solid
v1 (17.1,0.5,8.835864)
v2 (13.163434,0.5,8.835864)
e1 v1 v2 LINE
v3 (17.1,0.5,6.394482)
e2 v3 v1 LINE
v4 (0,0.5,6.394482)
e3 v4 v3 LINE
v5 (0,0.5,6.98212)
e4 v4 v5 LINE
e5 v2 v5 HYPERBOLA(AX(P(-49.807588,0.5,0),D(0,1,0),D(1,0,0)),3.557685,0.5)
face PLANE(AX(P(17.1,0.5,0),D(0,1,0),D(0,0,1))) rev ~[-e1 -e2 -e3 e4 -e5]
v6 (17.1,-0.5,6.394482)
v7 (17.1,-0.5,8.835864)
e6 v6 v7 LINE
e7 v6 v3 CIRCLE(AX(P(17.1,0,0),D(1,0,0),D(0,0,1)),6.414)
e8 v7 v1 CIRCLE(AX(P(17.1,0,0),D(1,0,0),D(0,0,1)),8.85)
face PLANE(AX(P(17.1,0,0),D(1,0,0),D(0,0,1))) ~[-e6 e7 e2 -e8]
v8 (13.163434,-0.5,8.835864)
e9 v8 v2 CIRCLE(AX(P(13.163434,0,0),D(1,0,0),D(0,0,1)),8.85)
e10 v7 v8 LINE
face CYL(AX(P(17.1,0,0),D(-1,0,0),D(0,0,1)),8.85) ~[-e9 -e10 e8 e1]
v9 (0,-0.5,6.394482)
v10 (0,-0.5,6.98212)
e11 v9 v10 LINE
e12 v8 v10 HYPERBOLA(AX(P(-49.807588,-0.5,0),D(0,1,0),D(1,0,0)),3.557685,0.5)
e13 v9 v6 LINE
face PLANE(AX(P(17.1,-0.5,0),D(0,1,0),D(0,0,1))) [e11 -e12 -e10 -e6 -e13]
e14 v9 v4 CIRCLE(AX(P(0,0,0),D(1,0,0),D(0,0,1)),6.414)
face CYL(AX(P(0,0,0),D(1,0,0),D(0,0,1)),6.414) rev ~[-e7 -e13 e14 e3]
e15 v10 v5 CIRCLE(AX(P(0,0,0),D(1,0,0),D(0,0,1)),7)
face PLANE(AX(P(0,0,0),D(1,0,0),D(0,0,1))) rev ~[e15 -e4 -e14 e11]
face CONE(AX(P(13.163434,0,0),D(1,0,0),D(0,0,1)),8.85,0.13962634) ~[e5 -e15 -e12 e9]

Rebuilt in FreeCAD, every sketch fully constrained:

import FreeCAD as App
import Part
import Sketcher
Q = App.Units.Quantity

doc = App.newDocument("Part")
body = doc.addObject("PartDesign::Body", "Body")

# Sketch on XZ plane
sketch1 = body.newObject("Sketcher::SketchObject", "Sketch")
sketch1.AttachmentSupport = (doc.getObject("XZ_Plane"), [""])
sketch1.MapMode = "FlatFace"
sketch1.addGeometry([
    Part.LineSegment(App.Vector(0, 7, 0), App.Vector(0, 6.4, 0)),  # 0
    Part.LineSegment(App.Vector(0, 6.4, 0), App.Vector(17.1, 6.4, 0)),  # 1
    Part.LineSegment(App.Vector(17.1, 6.4, 0), App.Vector(17.1, 8.8, 0)),  # 2
    Part.LineSegment(App.Vector(17.1, 8.8, 0), App.Vector(13.2, 8.8, 0)),  # 3
    Part.LineSegment(App.Vector(13.2, 8.8, 0), App.Vector(0, 7, 0)),  # 4
], False)
sketch1.addConstraint([
    Sketcher.Constraint("Coincident", 0, 2, 1, 1),
    Sketcher.Constraint("Coincident", 1, 2, 2, 1),
    Sketcher.Constraint("Coincident", 2, 2, 3, 1),
    Sketcher.Constraint("Coincident", 3, 2, 4, 1),
    Sketcher.Constraint("Coincident", 4, 2, 0, 1),
    Sketcher.Constraint("Vertical", 0),
    Sketcher.Constraint("Horizontal", 1),
    Sketcher.Constraint("Vertical", 2),
    Sketcher.Constraint("Horizontal", 3),
    Sketcher.Constraint("PointOnObject", 0, 2, -2),
    Sketcher.Constraint("Angle", 4, Q("-172 deg")),
    Sketcher.Constraint("DistanceX", 1, 1, 1, 2, Q("17.1 mm")),
    Sketcher.Constraint("DistanceY", -1, 1, 4, 2, Q("7 mm")),
    Sketcher.Constraint("DistanceY", 0, 2, 0, 1, Q("0.586 mm")),
    Sketcher.Constraint("DistanceY", 2, 1, 2, 2, Q("2.436 mm")),
])
revolution = body.newObject("PartDesign::Revolution", "Revolution")
revolution.Profile = sketch1
revolution.ReferenceAxis = (sketch1, ["H_Axis"])
revolution.Angle = 360

# Sketch on YZ plane
sketch2 = body.newObject("Sketcher::SketchObject", "Sketch001")
sketch2.AttachmentSupport = (doc.getObject("YZ_Plane"), [""])
sketch2.MapMode = "FlatFace"
sketch2.AttachmentOffset = App.Placement(App.Vector(0, 0, 17.1), App.Rotation())
sketch2.addGeometry([
    Part.LineSegment(App.Vector(-0.5, 11.2, 0), App.Vector(-0.5, 0, 0)),
    Part.LineSegment(App.Vector(-0.5, 0, 0), App.Vector(0.5, 0, 0)),
    Part.LineSegment(App.Vector(0.5, 0, 0), App.Vector(0.5, 11.2, 0)),
    Part.LineSegment(App.Vector(0.5, 11.2, 0), App.Vector(-0.5, 11.2, 0)),
], False)
sketch2.addConstraint([
    Sketcher.Constraint("Coincident", 0, 2, 1, 1),
    Sketcher.Constraint("Coincident", 1, 2, 2, 1),
    Sketcher.Constraint("Coincident", 2, 2, 3, 1),
    Sketcher.Constraint("Coincident", 3, 2, 0, 1),
    Sketcher.Constraint("Vertical", 0),
    Sketcher.Constraint("Horizontal", 1),
    Sketcher.Constraint("Vertical", 2),
    Sketcher.Constraint("Horizontal", 3),
    Sketcher.Constraint("Symmetric", 0, 2, 1, 2, -1, 1),
    Sketcher.Constraint("DistanceX", 1, 1, 1, 2, Q("1 mm")),
    Sketcher.Constraint("DistanceY", 0, 2, 0, 1, Q("11.174016 mm")),
])
pocket1 = body.newObject("PartDesign::Pocket", "Pocket")
pocket1.Profile = sketch2
pocket1.Type = "ThroughAll"

doc.recompute()
